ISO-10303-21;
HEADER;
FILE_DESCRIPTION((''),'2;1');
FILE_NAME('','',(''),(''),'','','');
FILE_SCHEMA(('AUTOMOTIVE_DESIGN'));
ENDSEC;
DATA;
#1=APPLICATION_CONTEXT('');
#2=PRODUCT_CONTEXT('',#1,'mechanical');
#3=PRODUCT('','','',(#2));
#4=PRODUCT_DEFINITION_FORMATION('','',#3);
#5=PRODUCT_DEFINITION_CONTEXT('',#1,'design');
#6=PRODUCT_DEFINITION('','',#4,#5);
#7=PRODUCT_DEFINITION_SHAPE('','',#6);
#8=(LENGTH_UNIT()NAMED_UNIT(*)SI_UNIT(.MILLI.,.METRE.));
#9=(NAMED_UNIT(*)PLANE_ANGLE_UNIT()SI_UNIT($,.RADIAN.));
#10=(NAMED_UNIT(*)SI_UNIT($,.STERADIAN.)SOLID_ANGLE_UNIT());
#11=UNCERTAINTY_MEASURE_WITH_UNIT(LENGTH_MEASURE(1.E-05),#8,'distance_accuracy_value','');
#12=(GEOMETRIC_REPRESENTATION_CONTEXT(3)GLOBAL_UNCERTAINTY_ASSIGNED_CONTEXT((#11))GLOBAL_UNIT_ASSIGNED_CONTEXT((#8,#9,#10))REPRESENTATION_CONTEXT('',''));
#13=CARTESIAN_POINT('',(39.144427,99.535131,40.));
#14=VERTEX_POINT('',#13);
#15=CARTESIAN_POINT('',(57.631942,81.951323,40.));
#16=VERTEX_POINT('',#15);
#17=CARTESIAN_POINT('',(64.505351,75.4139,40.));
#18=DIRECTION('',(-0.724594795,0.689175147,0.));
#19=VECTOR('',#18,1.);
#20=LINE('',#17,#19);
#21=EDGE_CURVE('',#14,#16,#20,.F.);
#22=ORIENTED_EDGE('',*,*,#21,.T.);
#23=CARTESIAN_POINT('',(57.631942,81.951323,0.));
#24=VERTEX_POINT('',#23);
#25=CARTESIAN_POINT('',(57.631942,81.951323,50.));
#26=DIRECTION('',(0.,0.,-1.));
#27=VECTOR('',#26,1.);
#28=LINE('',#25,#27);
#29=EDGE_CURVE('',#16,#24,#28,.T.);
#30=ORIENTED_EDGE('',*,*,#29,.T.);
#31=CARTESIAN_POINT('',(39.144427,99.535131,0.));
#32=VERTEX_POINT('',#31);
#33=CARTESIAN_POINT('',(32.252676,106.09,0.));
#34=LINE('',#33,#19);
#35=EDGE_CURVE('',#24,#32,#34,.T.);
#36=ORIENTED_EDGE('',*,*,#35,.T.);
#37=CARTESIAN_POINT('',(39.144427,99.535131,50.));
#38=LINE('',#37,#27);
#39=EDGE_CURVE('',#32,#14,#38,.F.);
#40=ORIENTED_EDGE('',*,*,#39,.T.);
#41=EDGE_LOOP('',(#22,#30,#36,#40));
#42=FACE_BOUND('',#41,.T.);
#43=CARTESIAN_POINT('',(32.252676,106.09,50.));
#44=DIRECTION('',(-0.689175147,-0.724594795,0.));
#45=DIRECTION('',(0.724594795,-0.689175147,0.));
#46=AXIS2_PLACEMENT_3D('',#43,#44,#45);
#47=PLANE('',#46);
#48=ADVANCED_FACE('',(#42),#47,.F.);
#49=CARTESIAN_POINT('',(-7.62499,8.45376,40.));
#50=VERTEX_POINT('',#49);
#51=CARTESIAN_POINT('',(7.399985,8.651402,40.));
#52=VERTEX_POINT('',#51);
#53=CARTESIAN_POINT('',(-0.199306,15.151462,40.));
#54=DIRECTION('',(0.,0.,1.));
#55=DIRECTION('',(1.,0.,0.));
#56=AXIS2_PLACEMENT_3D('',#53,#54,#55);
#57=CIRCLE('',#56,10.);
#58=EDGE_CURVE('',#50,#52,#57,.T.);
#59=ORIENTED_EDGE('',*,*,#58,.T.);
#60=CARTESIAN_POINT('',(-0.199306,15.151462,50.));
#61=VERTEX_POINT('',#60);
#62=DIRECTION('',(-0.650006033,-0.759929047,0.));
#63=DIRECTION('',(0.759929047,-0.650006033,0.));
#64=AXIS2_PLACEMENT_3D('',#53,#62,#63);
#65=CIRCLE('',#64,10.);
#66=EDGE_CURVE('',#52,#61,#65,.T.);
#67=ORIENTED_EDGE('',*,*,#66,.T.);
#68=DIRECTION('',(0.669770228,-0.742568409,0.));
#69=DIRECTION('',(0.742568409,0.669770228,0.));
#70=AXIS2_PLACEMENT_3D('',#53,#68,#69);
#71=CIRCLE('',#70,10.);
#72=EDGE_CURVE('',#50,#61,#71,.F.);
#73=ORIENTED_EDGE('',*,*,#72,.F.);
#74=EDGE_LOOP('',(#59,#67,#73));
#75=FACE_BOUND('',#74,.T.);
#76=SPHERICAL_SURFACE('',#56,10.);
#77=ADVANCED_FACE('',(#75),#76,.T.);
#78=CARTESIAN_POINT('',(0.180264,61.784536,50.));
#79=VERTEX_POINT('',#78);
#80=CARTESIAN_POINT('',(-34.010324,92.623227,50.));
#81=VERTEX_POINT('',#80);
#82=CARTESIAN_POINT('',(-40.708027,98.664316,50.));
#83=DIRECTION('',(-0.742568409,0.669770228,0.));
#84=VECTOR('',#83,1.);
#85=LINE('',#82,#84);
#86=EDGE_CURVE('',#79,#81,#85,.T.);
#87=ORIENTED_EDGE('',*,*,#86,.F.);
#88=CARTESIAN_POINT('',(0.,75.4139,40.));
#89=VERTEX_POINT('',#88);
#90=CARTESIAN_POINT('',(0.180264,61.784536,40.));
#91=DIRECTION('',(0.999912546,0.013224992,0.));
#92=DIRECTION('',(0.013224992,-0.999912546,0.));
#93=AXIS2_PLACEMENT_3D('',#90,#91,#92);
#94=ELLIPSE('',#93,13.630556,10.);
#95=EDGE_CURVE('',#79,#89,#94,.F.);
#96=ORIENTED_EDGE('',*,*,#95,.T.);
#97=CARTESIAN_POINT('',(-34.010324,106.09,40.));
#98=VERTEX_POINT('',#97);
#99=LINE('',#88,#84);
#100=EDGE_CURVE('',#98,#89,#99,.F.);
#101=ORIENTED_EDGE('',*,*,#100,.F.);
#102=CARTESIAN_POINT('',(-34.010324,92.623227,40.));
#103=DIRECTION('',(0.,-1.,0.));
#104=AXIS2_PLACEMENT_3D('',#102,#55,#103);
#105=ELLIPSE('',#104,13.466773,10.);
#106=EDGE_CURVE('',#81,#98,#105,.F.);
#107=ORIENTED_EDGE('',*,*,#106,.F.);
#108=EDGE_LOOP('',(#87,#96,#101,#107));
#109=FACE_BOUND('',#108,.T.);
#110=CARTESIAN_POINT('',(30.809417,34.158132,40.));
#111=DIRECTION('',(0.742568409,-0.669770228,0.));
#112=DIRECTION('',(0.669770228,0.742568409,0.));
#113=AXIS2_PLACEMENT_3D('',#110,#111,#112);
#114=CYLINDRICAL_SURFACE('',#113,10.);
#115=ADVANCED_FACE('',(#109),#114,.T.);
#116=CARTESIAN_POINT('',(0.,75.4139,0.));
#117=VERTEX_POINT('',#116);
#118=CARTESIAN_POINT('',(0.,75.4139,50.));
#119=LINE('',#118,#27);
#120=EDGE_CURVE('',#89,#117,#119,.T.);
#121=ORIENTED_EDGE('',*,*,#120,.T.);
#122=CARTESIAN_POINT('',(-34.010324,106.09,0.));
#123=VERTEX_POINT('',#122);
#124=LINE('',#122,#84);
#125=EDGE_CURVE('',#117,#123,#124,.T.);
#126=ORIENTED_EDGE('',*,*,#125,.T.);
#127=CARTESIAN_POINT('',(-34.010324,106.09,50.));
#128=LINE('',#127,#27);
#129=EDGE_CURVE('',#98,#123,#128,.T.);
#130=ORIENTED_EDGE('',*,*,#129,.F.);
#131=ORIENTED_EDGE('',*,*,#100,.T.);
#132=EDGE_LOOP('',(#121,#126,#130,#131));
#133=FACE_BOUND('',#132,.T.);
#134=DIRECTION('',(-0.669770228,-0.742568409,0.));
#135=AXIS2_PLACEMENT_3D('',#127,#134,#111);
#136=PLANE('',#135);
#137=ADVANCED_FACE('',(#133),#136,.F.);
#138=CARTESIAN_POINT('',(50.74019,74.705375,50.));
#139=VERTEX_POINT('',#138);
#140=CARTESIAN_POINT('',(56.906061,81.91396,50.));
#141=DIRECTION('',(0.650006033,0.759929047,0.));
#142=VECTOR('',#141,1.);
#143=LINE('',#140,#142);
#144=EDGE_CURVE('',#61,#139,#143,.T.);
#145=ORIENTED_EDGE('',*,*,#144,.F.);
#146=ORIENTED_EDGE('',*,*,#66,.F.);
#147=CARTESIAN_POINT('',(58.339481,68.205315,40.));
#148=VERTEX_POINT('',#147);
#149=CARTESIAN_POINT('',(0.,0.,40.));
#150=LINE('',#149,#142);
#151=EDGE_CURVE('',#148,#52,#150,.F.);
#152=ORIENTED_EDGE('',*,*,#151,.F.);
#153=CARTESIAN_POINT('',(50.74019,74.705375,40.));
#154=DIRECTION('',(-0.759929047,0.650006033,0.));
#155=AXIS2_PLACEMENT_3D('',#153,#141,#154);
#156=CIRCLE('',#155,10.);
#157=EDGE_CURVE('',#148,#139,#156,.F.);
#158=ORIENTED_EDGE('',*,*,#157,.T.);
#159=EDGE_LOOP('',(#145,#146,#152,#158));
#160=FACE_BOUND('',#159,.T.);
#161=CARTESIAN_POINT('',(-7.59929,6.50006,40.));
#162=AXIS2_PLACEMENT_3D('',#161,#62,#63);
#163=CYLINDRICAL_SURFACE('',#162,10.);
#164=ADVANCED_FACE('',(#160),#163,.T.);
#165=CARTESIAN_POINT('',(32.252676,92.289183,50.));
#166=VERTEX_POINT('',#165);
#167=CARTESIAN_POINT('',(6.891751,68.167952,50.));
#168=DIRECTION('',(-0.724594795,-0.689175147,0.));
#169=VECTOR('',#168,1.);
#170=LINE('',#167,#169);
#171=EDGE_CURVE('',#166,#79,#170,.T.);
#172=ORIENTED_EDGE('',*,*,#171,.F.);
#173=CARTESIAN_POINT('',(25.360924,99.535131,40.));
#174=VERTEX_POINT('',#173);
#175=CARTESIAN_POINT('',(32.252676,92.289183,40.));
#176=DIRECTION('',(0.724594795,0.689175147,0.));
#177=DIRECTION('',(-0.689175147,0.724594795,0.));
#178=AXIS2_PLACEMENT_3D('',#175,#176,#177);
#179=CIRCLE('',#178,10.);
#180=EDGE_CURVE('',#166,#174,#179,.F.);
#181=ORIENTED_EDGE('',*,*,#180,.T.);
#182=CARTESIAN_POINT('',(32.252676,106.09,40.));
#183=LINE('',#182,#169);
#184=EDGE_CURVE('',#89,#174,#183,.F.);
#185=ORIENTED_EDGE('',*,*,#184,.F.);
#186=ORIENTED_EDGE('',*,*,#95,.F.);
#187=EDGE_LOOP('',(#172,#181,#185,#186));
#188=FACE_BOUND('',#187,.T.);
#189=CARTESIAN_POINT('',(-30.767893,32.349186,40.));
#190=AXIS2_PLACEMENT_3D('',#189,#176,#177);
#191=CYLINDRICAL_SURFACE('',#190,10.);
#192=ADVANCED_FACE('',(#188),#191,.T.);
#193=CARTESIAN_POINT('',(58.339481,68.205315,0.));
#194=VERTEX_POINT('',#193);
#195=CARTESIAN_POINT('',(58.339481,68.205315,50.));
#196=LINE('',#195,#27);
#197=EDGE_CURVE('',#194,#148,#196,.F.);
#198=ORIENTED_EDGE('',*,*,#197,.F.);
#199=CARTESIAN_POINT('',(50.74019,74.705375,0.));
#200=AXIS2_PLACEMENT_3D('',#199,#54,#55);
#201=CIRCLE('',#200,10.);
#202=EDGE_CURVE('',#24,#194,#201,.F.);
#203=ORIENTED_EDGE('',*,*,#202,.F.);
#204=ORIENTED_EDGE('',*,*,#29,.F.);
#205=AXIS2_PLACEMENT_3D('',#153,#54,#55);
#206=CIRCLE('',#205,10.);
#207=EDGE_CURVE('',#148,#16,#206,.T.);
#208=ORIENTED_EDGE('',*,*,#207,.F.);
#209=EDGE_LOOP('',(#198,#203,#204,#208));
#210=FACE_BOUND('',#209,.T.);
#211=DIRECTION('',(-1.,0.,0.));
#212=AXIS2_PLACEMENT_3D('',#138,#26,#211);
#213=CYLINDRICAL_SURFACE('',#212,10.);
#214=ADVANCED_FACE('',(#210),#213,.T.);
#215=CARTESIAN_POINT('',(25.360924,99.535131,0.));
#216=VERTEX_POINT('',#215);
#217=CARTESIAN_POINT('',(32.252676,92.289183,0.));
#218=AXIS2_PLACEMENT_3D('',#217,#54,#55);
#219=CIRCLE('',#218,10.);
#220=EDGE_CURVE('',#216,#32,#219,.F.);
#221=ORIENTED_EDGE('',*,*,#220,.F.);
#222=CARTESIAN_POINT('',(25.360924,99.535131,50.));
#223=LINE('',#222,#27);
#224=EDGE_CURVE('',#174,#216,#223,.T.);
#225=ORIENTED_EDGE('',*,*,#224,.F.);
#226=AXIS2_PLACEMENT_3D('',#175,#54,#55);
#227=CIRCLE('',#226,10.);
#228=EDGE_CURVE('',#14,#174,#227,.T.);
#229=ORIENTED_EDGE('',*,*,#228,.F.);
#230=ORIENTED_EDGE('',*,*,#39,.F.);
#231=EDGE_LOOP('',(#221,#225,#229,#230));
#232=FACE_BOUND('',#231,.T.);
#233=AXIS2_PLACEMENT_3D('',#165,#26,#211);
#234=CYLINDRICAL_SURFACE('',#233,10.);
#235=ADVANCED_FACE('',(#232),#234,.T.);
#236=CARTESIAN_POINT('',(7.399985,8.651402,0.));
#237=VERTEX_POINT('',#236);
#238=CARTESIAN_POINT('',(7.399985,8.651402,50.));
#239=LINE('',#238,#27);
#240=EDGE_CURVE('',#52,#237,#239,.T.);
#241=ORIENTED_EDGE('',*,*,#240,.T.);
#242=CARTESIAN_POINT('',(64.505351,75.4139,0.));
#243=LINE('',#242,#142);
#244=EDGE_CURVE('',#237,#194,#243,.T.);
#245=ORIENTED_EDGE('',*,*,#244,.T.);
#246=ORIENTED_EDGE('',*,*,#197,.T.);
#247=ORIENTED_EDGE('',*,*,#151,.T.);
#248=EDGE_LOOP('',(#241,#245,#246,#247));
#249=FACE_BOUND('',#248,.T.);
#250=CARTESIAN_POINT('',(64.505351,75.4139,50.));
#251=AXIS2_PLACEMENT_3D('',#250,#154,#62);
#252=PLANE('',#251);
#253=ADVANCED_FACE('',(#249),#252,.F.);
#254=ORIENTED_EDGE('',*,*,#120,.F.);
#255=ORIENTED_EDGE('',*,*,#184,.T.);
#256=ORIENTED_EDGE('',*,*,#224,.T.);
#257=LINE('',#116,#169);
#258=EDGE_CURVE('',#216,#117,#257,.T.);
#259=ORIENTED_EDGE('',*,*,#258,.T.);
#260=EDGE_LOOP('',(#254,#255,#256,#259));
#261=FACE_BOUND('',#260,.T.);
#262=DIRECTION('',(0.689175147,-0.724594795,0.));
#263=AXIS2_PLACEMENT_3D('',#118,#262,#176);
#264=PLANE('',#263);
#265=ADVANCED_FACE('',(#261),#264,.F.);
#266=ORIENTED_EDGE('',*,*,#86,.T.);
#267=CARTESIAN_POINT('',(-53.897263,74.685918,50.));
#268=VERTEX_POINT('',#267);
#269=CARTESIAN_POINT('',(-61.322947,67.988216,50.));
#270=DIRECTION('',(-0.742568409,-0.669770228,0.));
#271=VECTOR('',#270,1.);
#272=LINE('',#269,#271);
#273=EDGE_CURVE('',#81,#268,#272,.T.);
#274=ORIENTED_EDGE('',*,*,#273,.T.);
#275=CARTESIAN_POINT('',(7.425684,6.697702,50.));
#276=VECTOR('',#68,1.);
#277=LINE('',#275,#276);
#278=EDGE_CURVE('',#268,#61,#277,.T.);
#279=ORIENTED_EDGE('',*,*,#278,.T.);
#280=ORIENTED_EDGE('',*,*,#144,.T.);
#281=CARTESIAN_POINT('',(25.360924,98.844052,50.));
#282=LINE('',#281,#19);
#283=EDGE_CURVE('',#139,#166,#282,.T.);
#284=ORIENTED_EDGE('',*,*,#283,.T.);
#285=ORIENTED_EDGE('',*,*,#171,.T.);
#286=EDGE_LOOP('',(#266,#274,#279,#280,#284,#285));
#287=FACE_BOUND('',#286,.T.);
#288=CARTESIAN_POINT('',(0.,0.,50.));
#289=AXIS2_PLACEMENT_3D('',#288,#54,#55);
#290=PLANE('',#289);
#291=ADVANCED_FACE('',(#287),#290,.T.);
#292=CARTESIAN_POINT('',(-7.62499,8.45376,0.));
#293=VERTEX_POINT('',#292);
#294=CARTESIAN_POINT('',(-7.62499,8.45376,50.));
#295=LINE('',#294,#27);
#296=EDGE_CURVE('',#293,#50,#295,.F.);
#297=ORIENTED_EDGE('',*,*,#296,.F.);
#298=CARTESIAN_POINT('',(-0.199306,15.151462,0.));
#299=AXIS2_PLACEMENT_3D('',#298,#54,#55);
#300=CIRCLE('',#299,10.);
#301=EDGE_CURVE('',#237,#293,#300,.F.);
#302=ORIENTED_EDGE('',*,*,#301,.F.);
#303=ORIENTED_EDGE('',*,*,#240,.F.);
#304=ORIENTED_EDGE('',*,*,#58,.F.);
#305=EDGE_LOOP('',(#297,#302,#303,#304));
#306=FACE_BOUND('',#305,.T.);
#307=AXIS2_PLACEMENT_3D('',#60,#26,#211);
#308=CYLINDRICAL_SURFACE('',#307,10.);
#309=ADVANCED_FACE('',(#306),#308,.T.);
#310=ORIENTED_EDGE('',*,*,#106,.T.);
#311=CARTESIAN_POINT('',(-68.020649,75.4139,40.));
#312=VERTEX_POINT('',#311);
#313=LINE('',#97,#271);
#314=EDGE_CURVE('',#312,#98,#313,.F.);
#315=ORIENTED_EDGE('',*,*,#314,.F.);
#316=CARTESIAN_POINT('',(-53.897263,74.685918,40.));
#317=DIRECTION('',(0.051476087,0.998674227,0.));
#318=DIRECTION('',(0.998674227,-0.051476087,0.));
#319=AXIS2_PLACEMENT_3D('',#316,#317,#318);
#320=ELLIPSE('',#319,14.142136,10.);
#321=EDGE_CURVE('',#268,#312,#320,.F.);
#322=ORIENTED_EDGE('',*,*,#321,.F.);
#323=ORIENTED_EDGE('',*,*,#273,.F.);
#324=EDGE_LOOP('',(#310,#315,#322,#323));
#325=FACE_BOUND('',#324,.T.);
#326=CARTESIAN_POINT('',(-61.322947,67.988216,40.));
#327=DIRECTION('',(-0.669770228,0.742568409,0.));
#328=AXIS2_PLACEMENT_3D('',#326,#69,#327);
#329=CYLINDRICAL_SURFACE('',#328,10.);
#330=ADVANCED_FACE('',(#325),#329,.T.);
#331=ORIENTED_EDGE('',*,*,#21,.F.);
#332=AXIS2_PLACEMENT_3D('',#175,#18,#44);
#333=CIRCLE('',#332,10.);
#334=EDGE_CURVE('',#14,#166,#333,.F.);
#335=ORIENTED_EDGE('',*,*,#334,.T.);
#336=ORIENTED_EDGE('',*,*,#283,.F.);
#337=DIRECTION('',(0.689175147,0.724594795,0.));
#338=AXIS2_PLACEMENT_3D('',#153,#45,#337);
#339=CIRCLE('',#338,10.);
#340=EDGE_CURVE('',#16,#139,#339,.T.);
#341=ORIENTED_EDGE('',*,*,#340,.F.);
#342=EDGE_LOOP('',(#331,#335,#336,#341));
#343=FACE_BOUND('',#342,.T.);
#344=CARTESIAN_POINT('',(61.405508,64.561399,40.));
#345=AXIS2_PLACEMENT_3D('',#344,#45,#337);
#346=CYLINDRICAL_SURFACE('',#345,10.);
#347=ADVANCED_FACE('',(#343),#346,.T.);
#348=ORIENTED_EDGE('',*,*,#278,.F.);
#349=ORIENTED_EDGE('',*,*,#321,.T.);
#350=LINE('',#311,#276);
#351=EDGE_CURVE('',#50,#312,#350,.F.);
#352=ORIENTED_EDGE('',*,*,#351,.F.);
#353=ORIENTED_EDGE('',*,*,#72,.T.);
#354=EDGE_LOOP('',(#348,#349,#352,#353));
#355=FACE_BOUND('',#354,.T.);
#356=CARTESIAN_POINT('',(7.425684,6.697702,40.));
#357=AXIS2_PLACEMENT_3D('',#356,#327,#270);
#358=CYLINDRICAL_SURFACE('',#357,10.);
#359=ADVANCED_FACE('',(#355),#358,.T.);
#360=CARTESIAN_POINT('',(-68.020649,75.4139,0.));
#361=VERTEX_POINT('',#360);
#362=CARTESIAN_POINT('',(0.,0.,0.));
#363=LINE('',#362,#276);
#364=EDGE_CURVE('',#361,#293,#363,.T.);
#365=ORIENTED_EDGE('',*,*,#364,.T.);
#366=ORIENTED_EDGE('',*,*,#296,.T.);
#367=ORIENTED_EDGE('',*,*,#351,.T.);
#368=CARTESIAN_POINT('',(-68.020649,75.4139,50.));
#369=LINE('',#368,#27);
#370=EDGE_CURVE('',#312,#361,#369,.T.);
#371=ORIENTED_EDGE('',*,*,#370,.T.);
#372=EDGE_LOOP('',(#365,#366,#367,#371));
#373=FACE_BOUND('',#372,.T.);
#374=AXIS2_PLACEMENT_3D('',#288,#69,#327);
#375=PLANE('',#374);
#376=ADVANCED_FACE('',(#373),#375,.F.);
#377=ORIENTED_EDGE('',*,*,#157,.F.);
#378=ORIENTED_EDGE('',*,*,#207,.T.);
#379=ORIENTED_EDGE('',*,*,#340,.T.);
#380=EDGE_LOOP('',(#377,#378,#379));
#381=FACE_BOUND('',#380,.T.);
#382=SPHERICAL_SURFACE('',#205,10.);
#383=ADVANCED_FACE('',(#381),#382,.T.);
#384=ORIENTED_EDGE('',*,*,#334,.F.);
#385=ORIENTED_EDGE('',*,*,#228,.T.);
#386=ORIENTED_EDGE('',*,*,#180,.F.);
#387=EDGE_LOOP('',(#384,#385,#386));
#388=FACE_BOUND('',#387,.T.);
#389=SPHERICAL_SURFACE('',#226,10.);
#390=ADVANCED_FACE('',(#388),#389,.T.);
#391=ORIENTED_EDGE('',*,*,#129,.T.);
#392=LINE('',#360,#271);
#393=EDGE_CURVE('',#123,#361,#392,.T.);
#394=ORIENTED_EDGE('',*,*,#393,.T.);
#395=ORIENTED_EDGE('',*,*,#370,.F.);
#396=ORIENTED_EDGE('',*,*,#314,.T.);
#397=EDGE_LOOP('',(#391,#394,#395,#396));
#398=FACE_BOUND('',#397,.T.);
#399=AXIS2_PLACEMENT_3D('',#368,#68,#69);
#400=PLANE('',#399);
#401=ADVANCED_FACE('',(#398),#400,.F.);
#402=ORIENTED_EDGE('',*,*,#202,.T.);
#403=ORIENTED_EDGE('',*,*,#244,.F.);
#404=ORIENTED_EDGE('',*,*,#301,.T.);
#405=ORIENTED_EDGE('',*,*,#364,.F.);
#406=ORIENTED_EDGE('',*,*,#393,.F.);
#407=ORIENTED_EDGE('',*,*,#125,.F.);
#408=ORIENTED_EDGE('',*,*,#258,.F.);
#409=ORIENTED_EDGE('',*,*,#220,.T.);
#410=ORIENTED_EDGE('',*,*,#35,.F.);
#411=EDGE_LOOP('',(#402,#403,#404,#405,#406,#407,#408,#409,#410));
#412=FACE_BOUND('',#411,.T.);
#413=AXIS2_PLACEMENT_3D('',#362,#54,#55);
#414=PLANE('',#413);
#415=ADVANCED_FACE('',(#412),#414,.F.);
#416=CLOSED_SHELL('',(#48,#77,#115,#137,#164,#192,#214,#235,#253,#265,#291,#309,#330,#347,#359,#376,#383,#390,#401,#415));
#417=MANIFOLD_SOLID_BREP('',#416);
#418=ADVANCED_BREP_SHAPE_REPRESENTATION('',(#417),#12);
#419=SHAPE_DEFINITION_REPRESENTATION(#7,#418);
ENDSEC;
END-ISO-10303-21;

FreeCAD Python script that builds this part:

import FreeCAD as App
import Part
import Sketcher
from FreeCAD import Vector


def edges_at(feature, points):
    """Names of the edges that pass closest to the given points."""
    edges = feature.Shape.Edges
    near = lambda p: min(range(len(edges)), key=lambda i: edges[i].distToShape(Part.Vertex(*p))[0])
    return sorted({f"Edge{near(p) + 1}" for p in points})

doc = App.newDocument("Part")
body = doc.addObject("PartDesign::Body", "Body")

# Sketch on XY plane
sketch1 = doc.addObject("Sketcher::SketchObject", "Sketch")
body.addObject(sketch1)
sketch1.AttachmentSupport = (doc.XY_Plane, [""])
sketch1.MapMode = "FlatFace"
sketch1.addGeometry([
    Part.LineSegment(Vector(-68, 75, 0), Vector(0, 0, 0)),  # 0
    Part.LineSegment(Vector(0, 0, 0), Vector(65, 75, 0)),  # 1
    Part.LineSegment(Vector(65, 75, 0), Vector(32, 106, 0)),  # 2
    Part.LineSegment(Vector(32, 106, 0), Vector(0, 75, 0)),  # 3
    Part.LineSegment(Vector(0, 75, 0), Vector(-34, 106, 0)),  # 4
    Part.LineSegment(Vector(-34, 106, 0), Vector(-68, 75, 0)),  # 5
], False)
sketch1.addConstraint([
    Sketcher.Constraint("Coincident", 0, 2, 1, 1),
    Sketcher.Constraint("Coincident", 1, 2, 2, 1),
    Sketcher.Constraint("Coincident", 2, 2, 3, 1),
    Sketcher.Constraint("Coincident", 3, 2, 4, 1),
    Sketcher.Constraint("Coincident", 4, 2, 5, 1),
    Sketcher.Constraint("Coincident", 5, 2, 0, 1),
    Sketcher.Constraint("Coincident", 0, 2, -1, 1),
    Sketcher.Constraint("PointOnObject", 3, 2, -2),
    Sketcher.Constraint("Perpendicular", 0, 5),
    Sketcher.Constraint("Horizontal", 1, 2, 3, 2),
    Sketcher.Constraint("Horizontal", 2, 2, 4, 2),
    Sketcher.Constraint("Horizontal", 3, 2, 5, 2),
    Sketcher.Constraint("Equal", 2, 3),
    Sketcher.Constraint("Equal", 4, 5),
    Sketcher.Constraint("DistanceY", -1, 1, 2, 2, 106.09),
    Sketcher.Constraint("DistanceX", 4, 2, 2, 2, 66.263),
    Sketcher.Constraint("DistanceY", -1, 1, 1, 2, 75.4139),
])
pad1 = doc.addObject("PartDesign::Pad", "Pad")
body.addObject(pad1)
pad1.Profile = sketch1
pad1.Length = 50
doc.recompute()

fillet = doc.addObject("PartDesign::Fillet", "Fillet")
body.addObject(fillet)
fillet.Base = (pad1, edges_at(pad1, [
    (0, 0, 25),
    (32.253, 106.09, 25),
    (64.505, 75.414, 25),
    (16.126, 90.752, 50),
    (-17.005, 90.752, 50),
    (-51.015, 90.752, 50),
    (-34.01, 37.707, 50),
    (32.253, 37.707, 50),
    (48.379, 90.752, 50),
]))
fillet.Radius = 10

doc.recompute()
